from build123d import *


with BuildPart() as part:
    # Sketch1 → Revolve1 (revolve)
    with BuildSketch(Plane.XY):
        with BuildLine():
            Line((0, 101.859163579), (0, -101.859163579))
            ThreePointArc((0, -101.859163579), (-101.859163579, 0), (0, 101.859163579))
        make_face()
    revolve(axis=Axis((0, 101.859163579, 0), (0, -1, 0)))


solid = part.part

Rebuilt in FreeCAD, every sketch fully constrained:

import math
import FreeCAD as App
import Part
import Sketcher
from FreeCAD import Vector
Q = App.Units.Quantity

doc = App.newDocument("Part")
body = doc.addObject("PartDesign::Body", "Body")

# Sketch on XY plane
sketch1 = body.newObject("Sketcher::SketchObject", "Sketch")
sketch1.AttachmentSupport = (doc.getObject("XY_Plane"), [""])
sketch1.MapMode = "FlatFace"
sketch1.addGeometry([
    Part.LineSegment(Vector(0, -101.859164, 0), Vector(0, 101.859164, 0)),
    Part.ArcOfCircle(Part.Circle(Vector(0, 0, 0), Vector(0, 0, 1), 101.859164), math.radians(90), math.radians(270)),
], False)
sketch1.addConstraint([
    Sketcher.Constraint("Coincident", 0, 1, 1, 2),
    Sketcher.Constraint("Coincident", 1, 1, 0, 2),
    Sketcher.Constraint("Vertical", 0),
    Sketcher.Constraint("Coincident", 1, 3, -1, 1),
    Sketcher.Constraint("PointOnObject", 0, 1, -2),
    Sketcher.Constraint("Radius", 1, Q("101.859164 mm")),
])
revolution = body.newObject("PartDesign::Revolution", "Revolution")
revolution.Profile = sketch1
revolution.ReferenceAxis = (sketch1, ["V_Axis"])
revolution.Angle = 360

doc.recompute()
